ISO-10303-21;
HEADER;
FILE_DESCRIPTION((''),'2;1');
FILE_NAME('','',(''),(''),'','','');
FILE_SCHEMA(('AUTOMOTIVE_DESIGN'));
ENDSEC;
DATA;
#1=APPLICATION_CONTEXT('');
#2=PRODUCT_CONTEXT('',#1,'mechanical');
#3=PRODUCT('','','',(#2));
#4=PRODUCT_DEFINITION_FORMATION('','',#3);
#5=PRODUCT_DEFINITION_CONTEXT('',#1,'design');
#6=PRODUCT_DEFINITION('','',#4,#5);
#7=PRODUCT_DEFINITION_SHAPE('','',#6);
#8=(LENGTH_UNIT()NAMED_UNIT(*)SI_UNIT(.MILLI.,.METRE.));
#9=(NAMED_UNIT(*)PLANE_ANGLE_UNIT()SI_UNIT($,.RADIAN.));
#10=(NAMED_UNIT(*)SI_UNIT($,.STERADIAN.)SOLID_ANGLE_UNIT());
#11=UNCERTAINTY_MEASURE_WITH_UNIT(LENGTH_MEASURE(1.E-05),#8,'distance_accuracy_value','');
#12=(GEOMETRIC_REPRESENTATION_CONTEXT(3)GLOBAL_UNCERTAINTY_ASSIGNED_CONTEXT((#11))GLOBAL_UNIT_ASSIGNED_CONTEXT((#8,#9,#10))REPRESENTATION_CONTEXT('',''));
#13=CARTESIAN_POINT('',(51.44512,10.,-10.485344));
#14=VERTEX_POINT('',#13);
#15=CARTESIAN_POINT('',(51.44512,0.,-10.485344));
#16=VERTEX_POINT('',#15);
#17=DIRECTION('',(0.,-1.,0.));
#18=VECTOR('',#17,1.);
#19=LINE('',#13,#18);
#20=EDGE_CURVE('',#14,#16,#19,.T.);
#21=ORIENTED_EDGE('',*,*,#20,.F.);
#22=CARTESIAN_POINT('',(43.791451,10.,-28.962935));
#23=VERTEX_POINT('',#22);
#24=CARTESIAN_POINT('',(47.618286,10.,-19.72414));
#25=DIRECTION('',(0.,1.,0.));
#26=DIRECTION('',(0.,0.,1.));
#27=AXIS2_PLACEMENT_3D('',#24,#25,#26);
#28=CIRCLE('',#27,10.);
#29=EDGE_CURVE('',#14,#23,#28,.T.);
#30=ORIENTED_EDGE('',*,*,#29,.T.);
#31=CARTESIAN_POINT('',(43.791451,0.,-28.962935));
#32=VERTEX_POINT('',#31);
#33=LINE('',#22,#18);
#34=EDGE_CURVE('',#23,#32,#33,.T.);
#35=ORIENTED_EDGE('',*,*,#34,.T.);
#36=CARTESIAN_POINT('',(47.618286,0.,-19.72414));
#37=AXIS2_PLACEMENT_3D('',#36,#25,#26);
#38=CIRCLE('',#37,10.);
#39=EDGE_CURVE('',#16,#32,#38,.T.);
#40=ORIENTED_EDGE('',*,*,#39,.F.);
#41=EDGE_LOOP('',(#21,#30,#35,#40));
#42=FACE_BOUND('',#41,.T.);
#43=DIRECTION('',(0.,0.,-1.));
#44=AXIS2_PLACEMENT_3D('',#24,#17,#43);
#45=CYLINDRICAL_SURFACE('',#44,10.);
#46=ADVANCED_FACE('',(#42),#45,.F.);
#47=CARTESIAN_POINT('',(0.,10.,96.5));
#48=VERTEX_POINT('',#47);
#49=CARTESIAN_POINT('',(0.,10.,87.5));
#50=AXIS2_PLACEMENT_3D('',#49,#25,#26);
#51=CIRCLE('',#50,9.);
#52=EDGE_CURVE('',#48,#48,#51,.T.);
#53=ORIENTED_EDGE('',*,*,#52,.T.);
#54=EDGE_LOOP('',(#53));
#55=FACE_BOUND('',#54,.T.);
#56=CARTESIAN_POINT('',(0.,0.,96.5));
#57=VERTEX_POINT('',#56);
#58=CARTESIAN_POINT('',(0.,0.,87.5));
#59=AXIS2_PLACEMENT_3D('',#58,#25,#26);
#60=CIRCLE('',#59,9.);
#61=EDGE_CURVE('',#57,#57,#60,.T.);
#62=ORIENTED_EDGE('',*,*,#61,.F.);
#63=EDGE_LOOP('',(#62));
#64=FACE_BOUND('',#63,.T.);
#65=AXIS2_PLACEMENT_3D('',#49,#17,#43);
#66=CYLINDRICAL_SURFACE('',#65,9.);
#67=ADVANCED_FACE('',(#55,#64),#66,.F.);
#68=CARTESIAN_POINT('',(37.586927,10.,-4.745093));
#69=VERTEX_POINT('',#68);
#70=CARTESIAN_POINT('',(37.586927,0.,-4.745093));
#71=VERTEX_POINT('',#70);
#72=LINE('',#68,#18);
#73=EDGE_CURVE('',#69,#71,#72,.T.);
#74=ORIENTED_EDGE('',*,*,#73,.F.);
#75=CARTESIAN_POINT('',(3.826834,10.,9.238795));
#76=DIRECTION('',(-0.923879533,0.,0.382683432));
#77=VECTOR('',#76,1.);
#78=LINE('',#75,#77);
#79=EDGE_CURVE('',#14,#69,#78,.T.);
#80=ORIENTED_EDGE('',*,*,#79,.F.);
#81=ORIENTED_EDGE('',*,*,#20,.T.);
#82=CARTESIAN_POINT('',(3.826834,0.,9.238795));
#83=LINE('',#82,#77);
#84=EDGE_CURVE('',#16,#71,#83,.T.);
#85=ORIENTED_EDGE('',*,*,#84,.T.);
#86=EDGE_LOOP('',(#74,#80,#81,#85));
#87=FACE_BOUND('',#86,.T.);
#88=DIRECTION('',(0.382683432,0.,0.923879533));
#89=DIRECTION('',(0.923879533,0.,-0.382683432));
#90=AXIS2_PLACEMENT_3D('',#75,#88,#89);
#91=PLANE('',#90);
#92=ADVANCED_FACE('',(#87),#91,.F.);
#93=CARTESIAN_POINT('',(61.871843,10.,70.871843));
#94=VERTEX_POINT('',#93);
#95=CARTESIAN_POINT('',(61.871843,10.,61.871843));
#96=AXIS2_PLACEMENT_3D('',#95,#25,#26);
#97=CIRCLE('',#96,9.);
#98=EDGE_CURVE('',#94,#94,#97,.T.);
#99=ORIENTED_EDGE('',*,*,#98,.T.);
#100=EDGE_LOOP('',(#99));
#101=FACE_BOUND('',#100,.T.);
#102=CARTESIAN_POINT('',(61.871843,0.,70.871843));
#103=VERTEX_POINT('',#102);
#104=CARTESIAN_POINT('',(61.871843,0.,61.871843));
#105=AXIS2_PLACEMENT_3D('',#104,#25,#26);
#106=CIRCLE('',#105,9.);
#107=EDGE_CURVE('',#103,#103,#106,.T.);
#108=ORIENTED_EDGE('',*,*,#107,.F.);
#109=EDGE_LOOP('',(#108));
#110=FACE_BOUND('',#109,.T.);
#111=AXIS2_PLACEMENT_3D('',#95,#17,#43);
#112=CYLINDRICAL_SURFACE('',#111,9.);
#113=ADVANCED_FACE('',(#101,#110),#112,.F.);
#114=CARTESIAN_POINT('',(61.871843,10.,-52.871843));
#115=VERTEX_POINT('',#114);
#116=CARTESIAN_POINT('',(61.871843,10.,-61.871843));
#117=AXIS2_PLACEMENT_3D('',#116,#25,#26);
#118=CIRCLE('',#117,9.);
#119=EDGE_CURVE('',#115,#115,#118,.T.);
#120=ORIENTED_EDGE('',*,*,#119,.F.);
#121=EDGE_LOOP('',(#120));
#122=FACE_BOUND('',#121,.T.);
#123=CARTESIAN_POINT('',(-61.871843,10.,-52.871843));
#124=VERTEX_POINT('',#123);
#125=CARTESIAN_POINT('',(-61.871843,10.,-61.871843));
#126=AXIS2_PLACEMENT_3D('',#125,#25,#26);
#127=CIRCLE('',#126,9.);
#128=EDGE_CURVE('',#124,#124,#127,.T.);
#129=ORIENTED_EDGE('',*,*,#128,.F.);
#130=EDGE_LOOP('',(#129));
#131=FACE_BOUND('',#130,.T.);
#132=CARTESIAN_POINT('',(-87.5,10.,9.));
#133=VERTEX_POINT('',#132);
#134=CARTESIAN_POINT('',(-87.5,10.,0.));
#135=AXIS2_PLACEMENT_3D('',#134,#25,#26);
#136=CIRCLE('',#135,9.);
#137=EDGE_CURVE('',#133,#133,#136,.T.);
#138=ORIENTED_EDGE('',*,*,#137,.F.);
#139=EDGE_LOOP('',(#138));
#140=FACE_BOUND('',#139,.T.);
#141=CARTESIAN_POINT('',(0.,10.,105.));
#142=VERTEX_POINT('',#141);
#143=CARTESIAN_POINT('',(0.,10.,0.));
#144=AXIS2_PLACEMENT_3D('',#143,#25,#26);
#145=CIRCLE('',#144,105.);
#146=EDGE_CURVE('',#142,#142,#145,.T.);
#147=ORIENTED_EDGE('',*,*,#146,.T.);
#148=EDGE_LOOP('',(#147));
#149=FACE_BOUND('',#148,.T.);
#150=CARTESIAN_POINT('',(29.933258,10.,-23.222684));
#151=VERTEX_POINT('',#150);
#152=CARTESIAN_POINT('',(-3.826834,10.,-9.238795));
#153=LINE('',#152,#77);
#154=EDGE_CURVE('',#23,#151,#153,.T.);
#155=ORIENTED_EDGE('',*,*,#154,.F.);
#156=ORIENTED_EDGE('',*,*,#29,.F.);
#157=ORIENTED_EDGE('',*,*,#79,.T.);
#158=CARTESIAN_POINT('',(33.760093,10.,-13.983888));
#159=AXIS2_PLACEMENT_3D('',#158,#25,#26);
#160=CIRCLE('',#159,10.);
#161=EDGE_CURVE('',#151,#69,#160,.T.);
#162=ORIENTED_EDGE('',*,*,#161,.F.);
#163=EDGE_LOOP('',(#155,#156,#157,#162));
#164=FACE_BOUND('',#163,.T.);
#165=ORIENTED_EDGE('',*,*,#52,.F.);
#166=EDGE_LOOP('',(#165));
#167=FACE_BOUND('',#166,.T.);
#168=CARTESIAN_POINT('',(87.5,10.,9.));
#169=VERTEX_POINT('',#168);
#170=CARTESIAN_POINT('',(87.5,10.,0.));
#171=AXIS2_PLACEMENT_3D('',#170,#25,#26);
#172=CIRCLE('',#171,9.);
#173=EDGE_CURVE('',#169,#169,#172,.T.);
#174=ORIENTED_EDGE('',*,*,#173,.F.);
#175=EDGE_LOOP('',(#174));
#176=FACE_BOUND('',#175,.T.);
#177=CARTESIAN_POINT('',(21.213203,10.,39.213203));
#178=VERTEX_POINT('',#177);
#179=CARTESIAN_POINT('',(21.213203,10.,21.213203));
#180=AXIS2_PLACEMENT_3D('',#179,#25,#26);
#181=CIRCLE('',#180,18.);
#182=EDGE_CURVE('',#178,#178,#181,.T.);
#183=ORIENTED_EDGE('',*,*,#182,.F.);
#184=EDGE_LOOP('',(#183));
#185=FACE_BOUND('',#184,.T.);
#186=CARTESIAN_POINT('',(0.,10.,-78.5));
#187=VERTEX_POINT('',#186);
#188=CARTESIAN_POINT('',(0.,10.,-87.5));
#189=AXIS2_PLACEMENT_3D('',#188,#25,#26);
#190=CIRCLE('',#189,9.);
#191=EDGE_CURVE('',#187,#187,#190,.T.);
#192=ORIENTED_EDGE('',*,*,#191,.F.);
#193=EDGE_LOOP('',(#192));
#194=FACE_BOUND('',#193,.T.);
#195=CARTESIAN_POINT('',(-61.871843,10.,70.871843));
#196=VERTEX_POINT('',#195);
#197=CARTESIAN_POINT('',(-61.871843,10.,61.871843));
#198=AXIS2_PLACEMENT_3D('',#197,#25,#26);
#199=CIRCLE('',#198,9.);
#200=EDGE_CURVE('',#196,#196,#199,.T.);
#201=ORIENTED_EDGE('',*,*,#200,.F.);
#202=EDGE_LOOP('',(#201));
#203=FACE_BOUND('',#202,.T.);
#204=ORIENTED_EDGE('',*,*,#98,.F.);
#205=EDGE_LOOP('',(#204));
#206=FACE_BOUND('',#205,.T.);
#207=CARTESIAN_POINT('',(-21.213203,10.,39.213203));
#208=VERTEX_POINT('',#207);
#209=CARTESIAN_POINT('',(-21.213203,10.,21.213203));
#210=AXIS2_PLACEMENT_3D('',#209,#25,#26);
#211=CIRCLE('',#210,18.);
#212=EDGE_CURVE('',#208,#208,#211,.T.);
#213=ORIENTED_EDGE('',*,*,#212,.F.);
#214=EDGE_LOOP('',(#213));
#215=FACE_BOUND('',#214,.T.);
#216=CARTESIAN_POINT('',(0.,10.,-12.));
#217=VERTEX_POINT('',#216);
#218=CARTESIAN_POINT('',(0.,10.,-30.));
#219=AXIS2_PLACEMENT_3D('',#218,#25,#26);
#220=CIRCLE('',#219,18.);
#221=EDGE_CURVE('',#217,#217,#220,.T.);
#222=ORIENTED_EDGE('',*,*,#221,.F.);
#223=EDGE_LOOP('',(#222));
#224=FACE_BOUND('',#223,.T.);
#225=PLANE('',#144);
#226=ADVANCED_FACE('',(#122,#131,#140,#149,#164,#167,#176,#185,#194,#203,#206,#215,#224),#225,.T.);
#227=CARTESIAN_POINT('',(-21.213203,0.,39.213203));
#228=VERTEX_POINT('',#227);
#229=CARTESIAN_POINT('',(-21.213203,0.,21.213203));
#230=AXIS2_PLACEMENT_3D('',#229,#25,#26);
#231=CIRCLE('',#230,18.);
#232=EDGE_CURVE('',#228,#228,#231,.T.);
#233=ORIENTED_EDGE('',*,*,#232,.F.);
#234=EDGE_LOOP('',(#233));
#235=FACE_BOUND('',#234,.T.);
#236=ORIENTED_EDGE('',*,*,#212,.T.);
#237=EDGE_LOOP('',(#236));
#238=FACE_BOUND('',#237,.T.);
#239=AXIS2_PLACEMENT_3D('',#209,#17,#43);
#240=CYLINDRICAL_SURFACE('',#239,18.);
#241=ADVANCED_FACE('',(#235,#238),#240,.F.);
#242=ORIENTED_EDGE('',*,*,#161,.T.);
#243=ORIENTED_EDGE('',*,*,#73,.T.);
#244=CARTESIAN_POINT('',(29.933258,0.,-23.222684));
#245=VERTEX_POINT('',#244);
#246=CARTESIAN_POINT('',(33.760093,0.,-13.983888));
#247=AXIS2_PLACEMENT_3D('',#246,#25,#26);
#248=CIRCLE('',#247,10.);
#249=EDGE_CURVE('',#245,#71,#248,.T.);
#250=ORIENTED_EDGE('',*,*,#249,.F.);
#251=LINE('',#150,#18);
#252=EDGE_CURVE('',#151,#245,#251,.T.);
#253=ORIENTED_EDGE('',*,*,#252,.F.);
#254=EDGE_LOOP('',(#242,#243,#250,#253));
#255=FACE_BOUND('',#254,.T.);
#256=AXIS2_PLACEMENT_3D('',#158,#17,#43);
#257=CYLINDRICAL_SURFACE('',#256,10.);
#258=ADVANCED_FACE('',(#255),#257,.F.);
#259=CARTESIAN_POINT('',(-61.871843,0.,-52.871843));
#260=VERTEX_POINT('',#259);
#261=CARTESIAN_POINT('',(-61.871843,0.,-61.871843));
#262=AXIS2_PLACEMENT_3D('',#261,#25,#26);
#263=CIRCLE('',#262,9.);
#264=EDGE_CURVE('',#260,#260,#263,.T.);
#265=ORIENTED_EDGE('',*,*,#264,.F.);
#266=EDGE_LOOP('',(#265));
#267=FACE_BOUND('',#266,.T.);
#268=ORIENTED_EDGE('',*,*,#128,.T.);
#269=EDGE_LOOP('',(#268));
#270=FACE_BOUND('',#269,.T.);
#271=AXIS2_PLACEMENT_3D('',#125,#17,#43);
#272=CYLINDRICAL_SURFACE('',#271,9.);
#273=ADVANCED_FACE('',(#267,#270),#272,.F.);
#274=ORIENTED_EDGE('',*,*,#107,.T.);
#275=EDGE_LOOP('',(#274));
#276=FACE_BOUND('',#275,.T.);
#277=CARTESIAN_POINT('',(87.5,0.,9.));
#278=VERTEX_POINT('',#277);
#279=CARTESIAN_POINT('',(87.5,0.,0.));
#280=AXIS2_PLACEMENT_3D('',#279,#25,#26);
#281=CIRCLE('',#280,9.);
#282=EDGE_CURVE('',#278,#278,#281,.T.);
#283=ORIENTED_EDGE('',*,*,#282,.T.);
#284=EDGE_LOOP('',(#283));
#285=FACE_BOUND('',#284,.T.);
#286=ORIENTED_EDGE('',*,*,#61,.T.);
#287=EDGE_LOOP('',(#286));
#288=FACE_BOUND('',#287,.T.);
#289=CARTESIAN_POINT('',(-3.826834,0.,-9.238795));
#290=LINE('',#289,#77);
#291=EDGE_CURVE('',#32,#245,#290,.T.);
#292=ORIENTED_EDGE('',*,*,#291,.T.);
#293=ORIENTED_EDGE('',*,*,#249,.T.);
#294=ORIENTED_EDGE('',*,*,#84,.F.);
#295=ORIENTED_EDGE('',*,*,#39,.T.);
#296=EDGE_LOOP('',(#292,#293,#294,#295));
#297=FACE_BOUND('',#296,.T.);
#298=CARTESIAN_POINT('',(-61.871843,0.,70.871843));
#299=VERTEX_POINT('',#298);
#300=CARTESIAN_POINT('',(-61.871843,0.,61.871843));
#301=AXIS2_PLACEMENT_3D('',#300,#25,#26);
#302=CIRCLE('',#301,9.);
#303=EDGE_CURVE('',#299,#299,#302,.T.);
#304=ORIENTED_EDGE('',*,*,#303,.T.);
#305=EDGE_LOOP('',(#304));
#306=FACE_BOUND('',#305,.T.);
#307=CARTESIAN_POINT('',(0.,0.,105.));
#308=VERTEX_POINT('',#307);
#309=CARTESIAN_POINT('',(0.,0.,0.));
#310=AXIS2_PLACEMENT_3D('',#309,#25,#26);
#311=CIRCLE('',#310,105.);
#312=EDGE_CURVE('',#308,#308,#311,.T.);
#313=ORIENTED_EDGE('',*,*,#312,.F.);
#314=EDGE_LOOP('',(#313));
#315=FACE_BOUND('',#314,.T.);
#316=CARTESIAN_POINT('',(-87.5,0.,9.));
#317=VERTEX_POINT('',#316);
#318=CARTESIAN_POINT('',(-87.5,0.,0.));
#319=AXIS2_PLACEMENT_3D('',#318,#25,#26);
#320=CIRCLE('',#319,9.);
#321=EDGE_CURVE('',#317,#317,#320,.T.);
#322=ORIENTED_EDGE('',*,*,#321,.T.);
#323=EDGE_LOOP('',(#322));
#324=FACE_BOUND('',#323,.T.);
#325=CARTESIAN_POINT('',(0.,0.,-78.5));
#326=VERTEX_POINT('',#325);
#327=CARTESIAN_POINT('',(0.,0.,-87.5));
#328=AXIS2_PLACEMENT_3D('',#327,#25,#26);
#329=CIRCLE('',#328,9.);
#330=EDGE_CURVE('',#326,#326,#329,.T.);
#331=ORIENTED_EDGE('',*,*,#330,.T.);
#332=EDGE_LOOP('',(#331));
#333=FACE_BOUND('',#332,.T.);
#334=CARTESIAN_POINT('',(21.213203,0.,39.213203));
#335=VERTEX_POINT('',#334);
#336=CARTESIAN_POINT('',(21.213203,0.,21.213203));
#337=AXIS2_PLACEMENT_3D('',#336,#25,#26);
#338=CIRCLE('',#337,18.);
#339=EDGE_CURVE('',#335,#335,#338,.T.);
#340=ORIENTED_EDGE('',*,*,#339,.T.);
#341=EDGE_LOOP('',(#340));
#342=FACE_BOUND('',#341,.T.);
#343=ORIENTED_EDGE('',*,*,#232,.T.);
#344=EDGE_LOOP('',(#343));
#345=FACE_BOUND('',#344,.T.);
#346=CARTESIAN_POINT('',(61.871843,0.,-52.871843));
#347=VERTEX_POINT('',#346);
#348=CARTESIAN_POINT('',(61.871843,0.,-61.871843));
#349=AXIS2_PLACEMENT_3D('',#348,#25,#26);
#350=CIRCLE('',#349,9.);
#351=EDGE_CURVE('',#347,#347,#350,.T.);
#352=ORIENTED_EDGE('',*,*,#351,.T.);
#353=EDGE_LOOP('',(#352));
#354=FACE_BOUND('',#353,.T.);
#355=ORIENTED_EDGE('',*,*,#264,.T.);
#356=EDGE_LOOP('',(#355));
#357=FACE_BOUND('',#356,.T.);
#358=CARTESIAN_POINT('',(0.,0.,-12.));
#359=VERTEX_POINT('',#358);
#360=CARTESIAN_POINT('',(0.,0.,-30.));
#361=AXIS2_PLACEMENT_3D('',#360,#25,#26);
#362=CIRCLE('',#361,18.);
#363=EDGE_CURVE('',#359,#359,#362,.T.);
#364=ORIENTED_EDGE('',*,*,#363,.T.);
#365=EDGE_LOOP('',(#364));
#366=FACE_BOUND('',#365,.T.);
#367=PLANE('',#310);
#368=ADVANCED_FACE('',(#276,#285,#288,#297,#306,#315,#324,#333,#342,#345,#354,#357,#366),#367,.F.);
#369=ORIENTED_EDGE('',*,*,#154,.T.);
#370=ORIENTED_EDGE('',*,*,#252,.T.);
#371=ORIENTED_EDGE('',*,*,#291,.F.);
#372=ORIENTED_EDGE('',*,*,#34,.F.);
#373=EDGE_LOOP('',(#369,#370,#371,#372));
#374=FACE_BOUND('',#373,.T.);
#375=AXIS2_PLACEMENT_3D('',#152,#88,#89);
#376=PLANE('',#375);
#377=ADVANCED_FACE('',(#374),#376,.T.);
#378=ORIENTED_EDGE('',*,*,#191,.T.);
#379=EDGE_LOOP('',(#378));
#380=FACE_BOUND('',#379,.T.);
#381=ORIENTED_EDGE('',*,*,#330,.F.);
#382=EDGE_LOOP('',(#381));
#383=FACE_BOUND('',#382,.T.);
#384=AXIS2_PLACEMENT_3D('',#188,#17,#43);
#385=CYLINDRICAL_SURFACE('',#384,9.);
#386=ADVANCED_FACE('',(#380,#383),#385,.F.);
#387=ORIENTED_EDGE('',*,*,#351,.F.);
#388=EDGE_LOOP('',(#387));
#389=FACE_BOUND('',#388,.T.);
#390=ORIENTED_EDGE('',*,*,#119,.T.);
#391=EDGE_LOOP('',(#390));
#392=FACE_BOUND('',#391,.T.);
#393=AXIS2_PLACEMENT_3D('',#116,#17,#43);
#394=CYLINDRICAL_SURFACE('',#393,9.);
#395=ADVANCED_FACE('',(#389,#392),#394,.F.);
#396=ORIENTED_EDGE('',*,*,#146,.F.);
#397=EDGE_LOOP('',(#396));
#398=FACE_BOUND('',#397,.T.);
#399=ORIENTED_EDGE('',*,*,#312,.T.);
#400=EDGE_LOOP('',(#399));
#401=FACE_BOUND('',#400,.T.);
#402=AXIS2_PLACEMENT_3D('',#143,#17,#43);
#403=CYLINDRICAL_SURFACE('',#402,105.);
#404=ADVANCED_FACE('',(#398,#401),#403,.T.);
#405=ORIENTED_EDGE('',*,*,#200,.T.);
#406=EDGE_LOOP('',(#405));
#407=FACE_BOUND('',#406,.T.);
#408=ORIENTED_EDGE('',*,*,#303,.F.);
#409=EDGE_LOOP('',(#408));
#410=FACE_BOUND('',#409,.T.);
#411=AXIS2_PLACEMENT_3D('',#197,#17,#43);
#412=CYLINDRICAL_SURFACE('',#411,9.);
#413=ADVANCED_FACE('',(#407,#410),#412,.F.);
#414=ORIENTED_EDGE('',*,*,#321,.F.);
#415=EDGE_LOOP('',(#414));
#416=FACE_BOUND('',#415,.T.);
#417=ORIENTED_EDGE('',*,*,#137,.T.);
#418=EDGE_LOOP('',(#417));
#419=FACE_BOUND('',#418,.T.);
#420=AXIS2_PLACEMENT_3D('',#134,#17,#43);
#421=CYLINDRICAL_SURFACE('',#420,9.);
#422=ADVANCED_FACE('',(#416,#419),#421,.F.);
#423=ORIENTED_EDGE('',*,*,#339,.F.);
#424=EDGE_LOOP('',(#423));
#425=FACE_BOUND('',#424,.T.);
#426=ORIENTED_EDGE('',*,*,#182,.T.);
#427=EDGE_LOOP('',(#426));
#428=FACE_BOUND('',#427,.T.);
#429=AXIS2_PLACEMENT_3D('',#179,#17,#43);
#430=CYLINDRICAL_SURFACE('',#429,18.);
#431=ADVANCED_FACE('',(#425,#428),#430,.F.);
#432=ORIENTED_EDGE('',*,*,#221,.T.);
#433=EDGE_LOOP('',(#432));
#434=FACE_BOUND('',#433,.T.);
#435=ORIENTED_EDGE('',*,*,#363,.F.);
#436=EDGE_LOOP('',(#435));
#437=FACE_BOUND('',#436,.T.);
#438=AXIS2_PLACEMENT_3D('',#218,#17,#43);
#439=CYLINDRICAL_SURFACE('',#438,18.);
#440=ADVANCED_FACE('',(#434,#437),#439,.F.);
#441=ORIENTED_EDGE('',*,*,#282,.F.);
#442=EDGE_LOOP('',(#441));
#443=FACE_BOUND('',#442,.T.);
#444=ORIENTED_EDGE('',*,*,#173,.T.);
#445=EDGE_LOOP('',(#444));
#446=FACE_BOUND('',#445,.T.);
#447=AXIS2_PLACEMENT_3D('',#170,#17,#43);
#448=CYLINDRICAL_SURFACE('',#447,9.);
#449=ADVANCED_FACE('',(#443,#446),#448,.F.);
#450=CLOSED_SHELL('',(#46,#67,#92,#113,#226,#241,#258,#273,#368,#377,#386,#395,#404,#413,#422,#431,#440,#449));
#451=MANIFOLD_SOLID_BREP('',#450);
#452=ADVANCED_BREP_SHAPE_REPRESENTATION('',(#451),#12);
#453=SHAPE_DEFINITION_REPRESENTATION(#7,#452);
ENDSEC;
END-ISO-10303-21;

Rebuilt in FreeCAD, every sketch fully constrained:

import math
import FreeCAD as App
import Part
import Sketcher
Q = App.Units.Quantity

doc = App.newDocument("Part")
params = doc.addObject("Spreadsheet::Sheet", "Params")
for row, (alias, value) in enumerate([
    ("sketch1_diameter", "210 mm"),
    ("sketch1_diameter2", "18 mm"),
    ("sketch1_diameter3", "36 mm"),
    ("sketch1_radius", "10 mm"),
    ("sketch1_length", "15 mm"),
    ("pad1_length", "10 mm"),
], start=1):
    params.set(f"A{row}", alias)
    params.set(f"B{row}", "=" + value)
    params.setAlias(f"B{row}", alias)

body = doc.addObject("PartDesign::Body", "Body")

# Sketch on XZ plane
sketch1 = doc.addObject("Sketcher::SketchObject", "Sketch")
body.addObject(sketch1)
sketch1.AttachmentSupport = (doc.XZ_Plane, [""])
sketch1.MapMode = "FlatFace"
sketch1.addGeometry([
    Part.Circle(App.Vector(0, 0, 0), App.Vector(0, 0, 1), 105),  # 0
    Part.Circle(App.Vector(-62, -62, 0), App.Vector(0, 0, 1), 9),  # 1
    Part.Circle(App.Vector(0, -88, 0), App.Vector(0, 0, 1), 9),  # 2
    Part.Circle(App.Vector(0, -30, 0), App.Vector(0, 0, 1), 18),  # 3
    Part.Circle(App.Vector(-88, 0, 0), App.Vector(0, 0, 1), 9),  # 4
    Part.Circle(App.Vector(-62, 62, 0), App.Vector(0, 0, 1), 9),  # 5
    Part.Circle(App.Vector(-21, 21, 0), App.Vector(0, 0, 1), 18),  # 6
    Part.ArcOfCircle(Part.Circle(App.Vector(34, -14, 0), App.Vector(0, 0, 1), 10), math.radians(68), math.radians(247)),  # 7
    Part.LineSegment(App.Vector(30, -23, 0), App.Vector(44, -29, 0)),  # 8
    Part.ArcOfCircle(Part.Circle(App.Vector(48, -20, 0), App.Vector(0, 0, 1), 10), math.radians(-113), math.radians(68)),  # 9
    Part.LineSegment(App.Vector(51, -10, 0), App.Vector(38, -5, 0)),  # 10
    Part.Circle(App.Vector(62, -62, 0), App.Vector(0, 0, 1), 9),  # 11
    Part.Circle(App.Vector(88, 0, 0), App.Vector(0, 0, 1), 9),  # 12
    Part.Circle(App.Vector(21, 21, 0), App.Vector(0, 0, 1), 18),  # 13
    Part.Circle(App.Vector(0, 88, 0), App.Vector(0, 0, 1), 9),  # 14
    Part.Circle(App.Vector(62, 62, 0), App.Vector(0, 0, 1), 9),  # 15
], False)
sketch1.addConstraint([
    Sketcher.Constraint("Tangent", 7, 2, 8, 1),
    Sketcher.Constraint("Tangent", 8, 2, 9, 1),
    Sketcher.Constraint("Tangent", 9, 2, 10, 1),
    Sketcher.Constraint("Tangent", 10, 2, 7, 1),
    Sketcher.Constraint("Coincident", 0, 3, -1, 1),
    Sketcher.Constraint("Equal", 1, 2),
    Sketcher.Constraint("Equal", 2, 4),
    Sketcher.Constraint("Equal", 4, 5),
    Sketcher.Constraint("Equal", 3, 6),
    Sketcher.Constraint("Equal", 7, 9),
    Sketcher.Constraint("Equal", 5, 11),
    Sketcher.Constraint("Equal", 11, 12),
    Sketcher.Constraint("Equal", 6, 13),
    Sketcher.Constraint("Equal", 12, 14),
    Sketcher.Constraint("Equal", 14, 15),
    Sketcher.Constraint("Symmetric", 5, 3, 11, 3, -1, 1),
    Sketcher.Constraint("Symmetric", 4, 3, 12, 3, -1, 1),
    Sketcher.Constraint("Symmetric", 2, 3, 14, 3, -1, 1),
    Sketcher.Constraint("Symmetric", 1, 3, 15, 3, -1, 1),
    Sketcher.Constraint("Symmetric", 1, 3, 11, 3, -2),
    Sketcher.Constraint("Symmetric", 6, 3, 13, 3, -2),
    Sketcher.Constraint("PointOnObject", 2, 3, -2),
    Sketcher.Constraint("PointOnObject", 3, 3, -2),
    Sketcher.Constraint("PointOnObject", 4, 3, -1),
    Sketcher.Constraint("Diameter", 0, 210.0),
    Sketcher.Constraint("Diameter", 1, 18.0),
    Sketcher.Constraint("Diameter", 3, 36.0),
    Sketcher.Constraint("Radius", 7, 10.0),
    Sketcher.Constraint("Distance", 8, 15.0),
    Sketcher.Constraint("DistanceY", 3, 3, -1, 1, 30.0),
    Sketcher.Constraint("Angle", 8, Q("-22.5 deg")),
    Sketcher.Constraint("DistanceY", 2, 3, -1, 1, 87.5),
    Sketcher.Constraint("DistanceX", 4, 3, -1, 1, 87.5),
    Sketcher.Constraint("DistanceY", 7, 3, -1, 1, 13.983888),
    Sketcher.Constraint("DistanceX", -1, 1, 7, 2, 29.933258),
    Sketcher.Constraint("DistanceX", 5, 3, 6, 3, 40.65864),
    Sketcher.Constraint("DistanceY", 6, 3, 5, 3, 40.65864),
    Sketcher.Constraint("DistanceY", 7, 3, 6, 3, 35.197092),
    Sketcher.Constraint("DistanceX", 6, 3, 9, 3, 68.831489),
])
sketch1.setExpression("Constraints[24]", "Params.sketch1_diameter")
sketch1.setExpression("Constraints[25]", "Params.sketch1_diameter2")
sketch1.setExpression("Constraints[26]", "Params.sketch1_diameter3")
sketch1.setExpression("Constraints[27]", "Params.sketch1_radius")
sketch1.setExpression("Constraints[28]", "Params.sketch1_length")
pad1 = doc.addObject("PartDesign::Pad", "Pad")
body.addObject(pad1)
pad1.Profile = sketch1
pad1.setExpression("Length", "Params.pad1_length")
pad1.Reversed = True

doc.recompute()
